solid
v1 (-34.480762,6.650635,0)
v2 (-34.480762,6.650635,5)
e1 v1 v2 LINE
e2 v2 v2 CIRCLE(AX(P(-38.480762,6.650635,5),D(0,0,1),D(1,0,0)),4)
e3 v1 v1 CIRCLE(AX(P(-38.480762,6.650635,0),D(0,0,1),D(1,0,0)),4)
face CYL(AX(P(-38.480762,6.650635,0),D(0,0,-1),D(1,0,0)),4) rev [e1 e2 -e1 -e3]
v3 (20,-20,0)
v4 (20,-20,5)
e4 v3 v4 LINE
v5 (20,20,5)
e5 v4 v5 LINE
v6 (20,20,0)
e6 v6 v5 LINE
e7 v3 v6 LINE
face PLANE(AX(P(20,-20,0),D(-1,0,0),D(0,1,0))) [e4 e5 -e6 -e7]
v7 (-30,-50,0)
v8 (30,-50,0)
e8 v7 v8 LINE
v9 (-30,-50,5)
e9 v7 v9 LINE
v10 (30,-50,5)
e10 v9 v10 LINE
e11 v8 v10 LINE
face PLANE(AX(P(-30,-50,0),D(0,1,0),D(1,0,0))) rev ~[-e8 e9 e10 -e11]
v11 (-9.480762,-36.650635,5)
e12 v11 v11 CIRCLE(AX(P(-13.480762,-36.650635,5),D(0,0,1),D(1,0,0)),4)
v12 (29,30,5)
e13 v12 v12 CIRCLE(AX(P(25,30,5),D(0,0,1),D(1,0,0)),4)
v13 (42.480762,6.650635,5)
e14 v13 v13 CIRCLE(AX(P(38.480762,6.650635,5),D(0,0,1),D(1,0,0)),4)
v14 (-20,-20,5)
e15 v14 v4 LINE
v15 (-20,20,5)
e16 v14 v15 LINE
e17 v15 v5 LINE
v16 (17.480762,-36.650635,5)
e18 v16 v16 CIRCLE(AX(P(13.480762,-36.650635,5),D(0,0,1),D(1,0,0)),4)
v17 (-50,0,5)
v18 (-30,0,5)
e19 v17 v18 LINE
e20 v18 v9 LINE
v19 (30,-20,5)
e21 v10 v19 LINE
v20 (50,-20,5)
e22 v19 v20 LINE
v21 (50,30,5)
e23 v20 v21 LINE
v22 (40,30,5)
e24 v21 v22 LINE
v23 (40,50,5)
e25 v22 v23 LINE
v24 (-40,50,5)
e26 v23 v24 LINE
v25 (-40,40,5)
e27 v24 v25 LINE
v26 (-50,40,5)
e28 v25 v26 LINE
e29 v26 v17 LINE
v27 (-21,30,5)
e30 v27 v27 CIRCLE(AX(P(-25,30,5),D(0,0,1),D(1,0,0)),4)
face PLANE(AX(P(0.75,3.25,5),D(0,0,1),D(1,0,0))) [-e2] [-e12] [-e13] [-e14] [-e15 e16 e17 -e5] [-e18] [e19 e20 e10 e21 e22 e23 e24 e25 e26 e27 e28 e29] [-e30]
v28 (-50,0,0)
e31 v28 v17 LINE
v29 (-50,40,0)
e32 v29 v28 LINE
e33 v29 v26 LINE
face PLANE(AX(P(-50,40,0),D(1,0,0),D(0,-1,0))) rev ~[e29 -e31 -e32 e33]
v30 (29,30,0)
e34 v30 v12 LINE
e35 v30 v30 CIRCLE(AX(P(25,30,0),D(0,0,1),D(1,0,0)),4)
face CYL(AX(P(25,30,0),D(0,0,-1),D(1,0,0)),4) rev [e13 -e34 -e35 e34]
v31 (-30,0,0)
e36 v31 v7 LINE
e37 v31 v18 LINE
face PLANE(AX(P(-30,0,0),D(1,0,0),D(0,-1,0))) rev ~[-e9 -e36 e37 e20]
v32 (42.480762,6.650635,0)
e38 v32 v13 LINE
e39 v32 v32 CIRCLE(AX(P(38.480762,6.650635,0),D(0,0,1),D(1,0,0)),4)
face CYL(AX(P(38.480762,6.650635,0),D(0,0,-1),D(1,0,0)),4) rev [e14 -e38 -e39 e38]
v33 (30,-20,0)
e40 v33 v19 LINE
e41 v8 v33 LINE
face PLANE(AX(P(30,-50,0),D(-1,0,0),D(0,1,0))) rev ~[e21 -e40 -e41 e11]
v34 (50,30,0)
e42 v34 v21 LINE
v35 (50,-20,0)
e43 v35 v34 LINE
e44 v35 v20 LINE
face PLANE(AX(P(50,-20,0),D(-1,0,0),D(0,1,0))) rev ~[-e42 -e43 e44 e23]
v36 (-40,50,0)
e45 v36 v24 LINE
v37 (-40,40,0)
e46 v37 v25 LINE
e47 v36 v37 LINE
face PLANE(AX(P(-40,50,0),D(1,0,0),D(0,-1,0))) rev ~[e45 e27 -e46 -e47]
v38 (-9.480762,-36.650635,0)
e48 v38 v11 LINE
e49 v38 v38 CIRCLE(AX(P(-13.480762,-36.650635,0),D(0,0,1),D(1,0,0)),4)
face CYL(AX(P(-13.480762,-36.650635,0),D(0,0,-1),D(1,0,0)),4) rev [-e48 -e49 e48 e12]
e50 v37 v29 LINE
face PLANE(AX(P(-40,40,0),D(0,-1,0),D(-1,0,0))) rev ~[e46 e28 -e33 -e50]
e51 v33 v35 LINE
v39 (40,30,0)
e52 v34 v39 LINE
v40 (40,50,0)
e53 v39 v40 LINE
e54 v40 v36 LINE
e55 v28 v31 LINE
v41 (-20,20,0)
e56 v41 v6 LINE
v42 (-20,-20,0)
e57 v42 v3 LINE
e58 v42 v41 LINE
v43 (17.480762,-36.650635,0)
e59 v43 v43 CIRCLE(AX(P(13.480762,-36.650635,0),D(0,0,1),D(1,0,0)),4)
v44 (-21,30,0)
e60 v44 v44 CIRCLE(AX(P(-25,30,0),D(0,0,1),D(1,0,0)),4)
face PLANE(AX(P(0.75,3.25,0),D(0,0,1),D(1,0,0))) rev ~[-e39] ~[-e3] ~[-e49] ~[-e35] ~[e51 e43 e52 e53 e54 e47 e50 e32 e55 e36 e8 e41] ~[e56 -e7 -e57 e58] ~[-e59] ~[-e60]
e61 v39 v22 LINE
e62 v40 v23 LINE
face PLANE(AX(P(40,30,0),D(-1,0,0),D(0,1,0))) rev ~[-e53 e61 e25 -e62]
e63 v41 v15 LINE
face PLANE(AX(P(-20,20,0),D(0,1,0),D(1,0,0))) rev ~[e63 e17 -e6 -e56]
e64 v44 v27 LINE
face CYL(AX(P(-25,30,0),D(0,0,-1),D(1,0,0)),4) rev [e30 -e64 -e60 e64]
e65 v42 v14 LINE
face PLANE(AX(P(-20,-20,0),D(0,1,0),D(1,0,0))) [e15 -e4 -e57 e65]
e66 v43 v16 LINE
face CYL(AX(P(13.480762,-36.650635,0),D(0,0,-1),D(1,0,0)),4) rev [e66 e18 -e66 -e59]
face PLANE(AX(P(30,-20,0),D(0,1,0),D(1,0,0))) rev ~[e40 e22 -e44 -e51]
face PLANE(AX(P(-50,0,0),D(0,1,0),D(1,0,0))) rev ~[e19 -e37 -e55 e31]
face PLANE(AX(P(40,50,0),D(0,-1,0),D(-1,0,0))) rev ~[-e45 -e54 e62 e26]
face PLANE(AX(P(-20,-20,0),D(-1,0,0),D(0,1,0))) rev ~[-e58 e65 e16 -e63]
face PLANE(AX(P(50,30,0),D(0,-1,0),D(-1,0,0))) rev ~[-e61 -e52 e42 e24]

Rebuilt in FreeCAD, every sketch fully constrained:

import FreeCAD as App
import Part
import Sketcher

doc = App.newDocument("Part")
params = doc.addObject("Spreadsheet::Sheet", "Params")
for row, (alias, value) in enumerate([
    ("sketch1_diameter", "8 mm"),
    ("sketch1_width", "80 mm"),
    ("sketch1_width2", "10 mm"),
    ("sketch1_width3", "20 mm"),
    ("sketch1_width4", "40 mm"),
    ("pad1_length", "5 mm"),
], start=1):
    params.set(f"A{row}", alias)
    params.set(f"B{row}", "=" + value)
    params.setAlias(f"B{row}", alias)

body = doc.addObject("PartDesign::Body", "Body")

sketch1 = doc.addObject("Sketcher::SketchObject", "Sketch")
body.addObject(sketch1)
sketch1.AttachmentSupport = (doc.XY_Plane, [""])
sketch1.MapMode = "FlatFace"
sketch1.addGeometry(Part.LineSegment(App.Vector(40, 50, 0), App.Vector(-40, 50, 0)), False)
sketch1.addGeometry(Part.LineSegment(App.Vector(-40, 50, 0), App.Vector(-40, 40, 0)), False)
sketch1.addGeometry(Part.LineSegment(App.Vector(-40, 40, 0), App.Vector(-50, 40, 0)), False)
sketch1.addGeometry(Part.LineSegment(App.Vector(-50, 40, 0), App.Vector(-50, 0, 0)), False)
sketch1.addGeometry(Part.LineSegment(App.Vector(-50, 0, 0), App.Vector(-30, 0, 0)), False)
sketch1.addGeometry(Part.LineSegment(App.Vector(-30, 0, 0), App.Vector(-30, -50, 0)), False)
sketch1.addGeometry(Part.LineSegment(App.Vector(-30, -50, 0), App.Vector(30, -50, 0)), False)
sketch1.addGeometry(Part.LineSegment(App.Vector(30, -50, 0), App.Vector(30, -20, 0)), False)
sketch1.addGeometry(Part.LineSegment(App.Vector(30, -20, 0), App.Vector(50, -20, 0)), False)
sketch1.addGeometry(Part.LineSegment(App.Vector(50, -20, 0), App.Vector(50, 30, 0)), False)
sketch1.addGeometry(Part.LineSegment(App.Vector(50, 30, 0), App.Vector(40, 30, 0)), False)
sketch1.addGeometry(Part.LineSegment(App.Vector(40, 30, 0), App.Vector(40, 50, 0)), False)
sketch1.addGeometry(Part.Circle(App.Vector(-13.5, -36.7, 0), App.Vector(0, 0, 1), 4), False)
sketch1.addGeometry(Part.Circle(App.Vector(13.5, -36.7, 0), App.Vector(0, 0, 1), 4), False)
sketch1.addGeometry(Part.Circle(App.Vector(-38.5, 6.7, 0), App.Vector(0, 0, 1), 4), False)
sketch1.addGeometry(Part.LineSegment(App.Vector(20, -20, 0), App.Vector(-20, -20, 0)), False)
sketch1.addGeometry(Part.LineSegment(App.Vector(-20, -20, 0), App.Vector(-20, 20, 0)), False)
sketch1.addGeometry(Part.LineSegment(App.Vector(-20, 20, 0), App.Vector(20, 20, 0)), False)
sketch1.addGeometry(Part.LineSegment(App.Vector(20, 20, 0), App.Vector(20, -20, 0)), False)
sketch1.addGeometry(Part.Circle(App.Vector(-25, 30, 0), App.Vector(0, 0, 1), 4), False)
sketch1.addGeometry(Part.Circle(App.Vector(38.5, 6.7, 0), App.Vector(0, 0, 1), 4), False)
sketch1.addGeometry(Part.Circle(App.Vector(25, 30, 0), App.Vector(0, 0, 1), 4), False)
sketch1.addConstraint(Sketcher.Constraint("Coincident", 0, 2, 1, 1))
sketch1.addConstraint(Sketcher.Constraint("Coincident", 1, 2, 2, 1))
sketch1.addConstraint(Sketcher.Constraint("Coincident", 2, 2, 3, 1))
sketch1.addConstraint(Sketcher.Constraint("Coincident", 3, 2, 4, 1))
sketch1.addConstraint(Sketcher.Constraint("Coincident", 4, 2, 5, 1))
sketch1.addConstraint(Sketcher.Constraint("Coincident", 5, 2, 6, 1))
sketch1.addConstraint(Sketcher.Constraint("Coincident", 6, 2, 7, 1))
sketch1.addConstraint(Sketcher.Constraint("Coincident", 7, 2, 8, 1))
sketch1.addConstraint(Sketcher.Constraint("Coincident", 8, 2, 9, 1))
sketch1.addConstraint(Sketcher.Constraint("Coincident", 9, 2, 10, 1))
sketch1.addConstraint(Sketcher.Constraint("Coincident", 10, 2, 11, 1))
sketch1.addConstraint(Sketcher.Constraint("Coincident", 11, 2, 0, 1))
sketch1.addConstraint(Sketcher.Constraint("Coincident", 15, 2, 16, 1))
sketch1.addConstraint(Sketcher.Constraint("Coincident", 16, 2, 17, 1))
sketch1.addConstraint(Sketcher.Constraint("Coincident", 17, 2, 18, 1))
sketch1.addConstraint(Sketcher.Constraint("Coincident", 18, 2, 15, 1))
sketch1.addConstraint(Sketcher.Constraint("Horizontal", 0))
sketch1.addConstraint(Sketcher.Constraint("Vertical", 1))
sketch1.addConstraint(Sketcher.Constraint("Horizontal", 2))
sketch1.addConstraint(Sketcher.Constraint("Vertical", 3))
sketch1.addConstraint(Sketcher.Constraint("Horizontal", 4))
sketch1.addConstraint(Sketcher.Constraint("Vertical", 5))
sketch1.addConstraint(Sketcher.Constraint("Horizontal", 6))
sketch1.addConstraint(Sketcher.Constraint("Vertical", 7))
sketch1.addConstraint(Sketcher.Constraint("Horizontal", 8))
sketch1.addConstraint(Sketcher.Constraint("Vertical", 9))
sketch1.addConstraint(Sketcher.Constraint("Horizontal", 10))
sketch1.addConstraint(Sketcher.Constraint("Vertical", 11))
sketch1.addConstraint(Sketcher.Constraint("Horizontal", 15))
sketch1.addConstraint(Sketcher.Constraint("Vertical", 16))
sketch1.addConstraint(Sketcher.Constraint("Horizontal", 17))
sketch1.addConstraint(Sketcher.Constraint("Vertical", 18))
sketch1.addConstraint(Sketcher.Constraint("Equal", 12, 13))
sketch1.addConstraint(Sketcher.Constraint("Equal", 13, 14))
sketch1.addConstraint(Sketcher.Constraint("Equal", 14, 19))
sketch1.addConstraint(Sketcher.Constraint("Equal", 19, 20))
sketch1.addConstraint(Sketcher.Constraint("Equal", 20, 21))
sketch1.addConstraint(Sketcher.Constraint("Symmetric", 15, 2, 17, 2, -1, 1))
sketch1.addConstraint(Sketcher.Constraint("Symmetric", 12, 3, 13, 3, -2))
sketch1.addConstraint(Sketcher.Constraint("Symmetric", 14, 3, 20, 3, -2))
sketch1.addConstraint(Sketcher.Constraint("Symmetric", 19, 3, 21, 3, -2))
sketch1.addConstraint(Sketcher.Constraint("PointOnObject", 3, 2, -1))
sketch1.addConstraint(Sketcher.Constraint("Horizontal", 21, 3, 9, 2))
sketch1.addConstraint(Sketcher.Constraint("Horizontal", 8, 2, 15, 2))
sketch1.addConstraint(Sketcher.Constraint("Equal", 4, 8))
sketch1.addConstraint(Sketcher.Constraint("Equal", 2, 10))
sketch1.addConstraint(Sketcher.Constraint("Equal", 10, 1))
sketch1.addConstraint(Sketcher.Constraint("Equal", 17, 3))
sketch1.addConstraint(Sketcher.Constraint("Equal", 5, 9))
sketch1.addConstraint(Sketcher.Constraint("Equal", 8, 11))
sketch1.addConstraint(Sketcher.Constraint("Equal", 3, 16))
sketch1.addConstraint(Sketcher.Constraint("Diameter", 12, 8.0))
sketch1.addConstraint(Sketcher.Constraint("DistanceX", 0, 2, 0, 1, 80.0))
sketch1.addConstraint(Sketcher.Constraint("DistanceX", 2, 2, 2, 1, 10.0))
sketch1.addConstraint(Sketcher.Constraint("DistanceX", 4, 1, 4, 2, 20.0))
sketch1.addConstraint(Sketcher.Constraint("DistanceX", 15, 2, 15, 1, 40.0))
sketch1.addConstraint(Sketcher.Constraint("DistanceX", 19, 3, -1, 1, 25.0))
sketch1.addConstraint(Sketcher.Constraint("DistanceX", 0, 2, -1, 1, 40.0))
sketch1.addConstraint(Sketcher.Constraint("DistanceX", 14, 3, 12, 3, 25.0))
sketch1.addConstraint(Sketcher.Constraint("DistanceY", 12, 3, 14, 3, 43.30127))
sketch1.addConstraint(Sketcher.Constraint("DistanceX", 14, 3, 19, 3, 13.480762))
sketch1.addConstraint(Sketcher.Constraint("DistanceY", 12, 3, -1, 1, 36.650635))
sketch1.setExpression("Constraints[51]", "Params.sketch1_diameter")
sketch1.setExpression("Constraints[52]", "Params.sketch1_width")
sketch1.setExpression("Constraints[53]", "Params.sketch1_width2")
sketch1.setExpression("Constraints[54]", "Params.sketch1_width3")
sketch1.setExpression("Constraints[55]", "Params.sketch1_width4")
pad1 = doc.addObject("PartDesign::Pad", "Pad")
body.addObject(pad1)
pad1.Profile = sketch1
pad1.setExpression("Length", "Params.pad1_length")

doc.recompute()
